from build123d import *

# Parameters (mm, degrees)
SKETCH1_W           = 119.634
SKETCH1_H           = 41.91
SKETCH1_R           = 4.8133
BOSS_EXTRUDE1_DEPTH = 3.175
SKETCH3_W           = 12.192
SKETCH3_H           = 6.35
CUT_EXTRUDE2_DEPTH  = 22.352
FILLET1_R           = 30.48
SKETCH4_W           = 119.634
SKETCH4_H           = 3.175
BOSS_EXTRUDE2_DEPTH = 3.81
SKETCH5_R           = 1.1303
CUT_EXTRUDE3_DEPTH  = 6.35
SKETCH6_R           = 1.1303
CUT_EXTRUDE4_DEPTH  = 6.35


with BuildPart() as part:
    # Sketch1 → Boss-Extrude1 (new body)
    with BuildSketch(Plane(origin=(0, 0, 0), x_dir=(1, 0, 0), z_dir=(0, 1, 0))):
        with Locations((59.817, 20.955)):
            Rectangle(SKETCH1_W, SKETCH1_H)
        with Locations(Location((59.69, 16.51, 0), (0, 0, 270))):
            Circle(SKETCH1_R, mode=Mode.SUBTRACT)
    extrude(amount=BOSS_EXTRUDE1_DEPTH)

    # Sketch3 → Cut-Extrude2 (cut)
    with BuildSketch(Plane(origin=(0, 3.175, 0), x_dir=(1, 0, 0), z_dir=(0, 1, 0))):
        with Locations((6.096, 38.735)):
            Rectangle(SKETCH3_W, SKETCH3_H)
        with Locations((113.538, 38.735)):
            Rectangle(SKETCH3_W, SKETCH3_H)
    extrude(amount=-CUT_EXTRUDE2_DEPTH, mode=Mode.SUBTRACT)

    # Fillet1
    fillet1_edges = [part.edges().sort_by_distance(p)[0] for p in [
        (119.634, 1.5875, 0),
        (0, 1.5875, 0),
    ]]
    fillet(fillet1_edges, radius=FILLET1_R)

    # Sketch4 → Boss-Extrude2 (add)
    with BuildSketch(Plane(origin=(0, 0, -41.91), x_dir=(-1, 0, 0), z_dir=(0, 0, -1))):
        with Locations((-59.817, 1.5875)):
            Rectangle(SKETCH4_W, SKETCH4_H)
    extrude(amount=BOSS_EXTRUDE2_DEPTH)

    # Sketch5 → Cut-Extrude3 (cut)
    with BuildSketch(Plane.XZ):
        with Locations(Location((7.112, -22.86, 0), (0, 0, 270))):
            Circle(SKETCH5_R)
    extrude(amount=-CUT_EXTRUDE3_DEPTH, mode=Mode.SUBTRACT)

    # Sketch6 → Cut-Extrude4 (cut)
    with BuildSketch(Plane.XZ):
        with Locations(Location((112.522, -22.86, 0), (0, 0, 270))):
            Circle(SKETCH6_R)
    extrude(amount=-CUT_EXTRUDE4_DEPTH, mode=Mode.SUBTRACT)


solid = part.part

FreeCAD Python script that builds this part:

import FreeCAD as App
import Part
import Sketcher

V = App.Vector
Q = App.Units.Quantity


def edges_at(feature, points):
    """Names of the edges that pass closest to the given points."""
    edges = feature.Shape.Edges
    near = lambda p: min(range(len(edges)), key=lambda i: edges[i].distToShape(Part.Vertex(*p))[0])
    return sorted({f"Edge{near(p) + 1}" for p in points})


def add_polygon(sketch, points):
    """Adds a closed chain of lines whose ends are joined by coincident constraints."""
    first, n = sketch.GeometryCount, len(points)
    for a, b in zip(points, points[1:] + points[:1]):
        sketch.addGeometry(Part.LineSegment(App.Vector(*a, 0), App.Vector(*b, 0)), False)
    for i in range(n):
        sketch.addConstraint(Sketcher.Constraint("Coincident", first + i, 2, first + (i + 1) % n, 1))

doc = App.newDocument("Part")
body = doc.addObject("PartDesign::Body", "Body")

# Sketch on XZ plane
sketch1 = body.newObject("Sketcher::SketchObject", "Sketch")
sketch1.AttachmentSupport = (doc.getObject("XZ_Plane"), [""])
sketch1.MapMode = "FlatFace"
add_polygon(sketch1, [(0, -41.9), (0, 0), (119.6, 0), (119.6, -41.9)])  # lines 0-3
sketch1.addGeometry(Part.Circle(V(59.7, -16.5, 0), V(0, 0, 1), 4.8), False)  # 4
sketch1.addConstraint([
    Sketcher.Constraint("Vertical", 0),
    Sketcher.Constraint("Horizontal", 1),
    Sketcher.Constraint("Vertical", 2),
    Sketcher.Constraint("Horizontal", 3),
    Sketcher.Constraint("Coincident", 0, 2, -1, 1),
    Sketcher.Constraint("Diameter", 4, Q("0.379 in")),
    Sketcher.Constraint("DistanceY", 2, 2, 4, 3, Q("1 in")),
    Sketcher.Constraint("DistanceX", 1, 1, 1, 2, Q("4.71 in")),
    Sketcher.Constraint("DistanceY", 0, 1, 0, 2, Q("1.65 in")),
    Sketcher.Constraint("DistanceX", -1, 1, 4, 3, Q("2.35 in")),
])
pad1 = body.newObject("PartDesign::Pad", "Pad")
pad1.Profile = sketch1
pad1.Length = Q("0.125 in")
pad1.Reversed = True

# Sketch on XZ plane
sketch2 = body.newObject("Sketcher::SketchObject", "Sketch001")
sketch2.AttachmentSupport = (doc.getObject("XZ_Plane"), [""])
sketch2.MapMode = "FlatFace"
sketch2.AttachmentOffset = App.Placement(V(0, 0, -0.125 * 25.4), App.Rotation())
add_polygon(sketch2, [(0, -42), (0, -36), (12, -36), (12, -42)])  # lines 0-3
add_polygon(sketch2, [(107, -42), (107, -36), (120, -36), (120, -42)])  # lines 4-7
sketch2.addConstraint([
    Sketcher.Constraint("Vertical", 0),
    Sketcher.Constraint("Horizontal", 1),
    Sketcher.Constraint("Vertical", 2),
    Sketcher.Constraint("Horizontal", 3),
    Sketcher.Constraint("Vertical", 4),
    Sketcher.Constraint("Horizontal", 5),
    Sketcher.Constraint("Vertical", 6),
    Sketcher.Constraint("Horizontal", 7),
    Sketcher.Constraint("PointOnObject", 0, 2, -2),
    Sketcher.Constraint("Horizontal", 1, 2, 4, 2),
    Sketcher.Constraint("Horizontal", 3, 2, 6, 2),
    Sketcher.Constraint("Equal", 3, 5),
    Sketcher.Constraint("DistanceX", 1, 1, 1, 2, Q("0.48 in")),
    Sketcher.Constraint("DistanceY", 0, 1, 0, 2, Q("0.25 in")),
    Sketcher.Constraint("DistanceY", 0, 2, -1, 1, Q("1.4 in")),
    Sketcher.Constraint("DistanceX", -1, 1, 4, 2, Q("4.23 in")),
])
pocket1 = body.newObject("PartDesign::Pocket", "Pocket")
pocket1.Profile = sketch2
pocket1.Length = Q("0.88 in")
pocket1.Reversed = True
doc.recompute()

fillet = body.newObject("PartDesign::Fillet", "Fillet")
fillet.Base = (pocket1, edges_at(pocket1, [(119.634, 1.587, 0), (0, 1.587, 0)]))
fillet.Radius = Q("1.2 in")

# Sketch on XY plane
sketch3 = body.newObject("Sketcher::SketchObject", "Sketch002")
sketch3.AttachmentSupport = (doc.getObject("XY_Plane"), [""])
sketch3.MapMode = "FlatFace"
sketch3.AttachmentOffset = App.Placement(V(0, 0, -1.65 * 25.4), App.Rotation())
add_polygon(sketch3, [(119.6, 3.2), (119.6, 0), (0, 0), (0, 3.2)])  # lines 0-3
sketch3.addConstraint([
    Sketcher.Constraint("Vertical", 0),
    Sketcher.Constraint("Horizontal", 1),
    Sketcher.Constraint("Vertical", 2),
    Sketcher.Constraint("Horizontal", 3),
    Sketcher.Constraint("Coincident", 1, 2, -1, 1),
    Sketcher.Constraint("DistanceX", 1, 2, 1, 1, Q("4.71 in")),
    Sketcher.Constraint("DistanceY", 0, 2, 0, 1, Q("0.125 in")),
])
pad2 = body.newObject("PartDesign::Pad", "Pad001")
pad2.Profile = sketch3
pad2.Length = Q("0.15 in")
pad2.Reversed = True

# Sketch on XZ plane
sketch4 = body.newObject("Sketcher::SketchObject", "Sketch003")
sketch4.AttachmentSupport = (doc.getObject("XZ_Plane"), [""])
sketch4.MapMode = "FlatFace"
sketch4.addGeometry(Part.Circle(V(7.1, -22.9, 0), V(0, 0, 1), 1.1), False)
sketch4.addConstraint([
    Sketcher.Constraint("Diameter", 0, Q("0.089 in")),
    Sketcher.Constraint("DistanceY", 0, 3, -1, 1, Q("0.9 in")),
    Sketcher.Constraint("DistanceX", -1, 1, 0, 3, Q("0.28 in")),
])
pocket2 = body.newObject("PartDesign::Pocket", "Pocket001")
pocket2.Profile = sketch4
pocket2.Length = Q("0.25 in")

# Sketch on XZ plane
sketch5 = body.newObject("Sketcher::SketchObject", "Sketch004")
sketch5.AttachmentSupport = (doc.getObject("XZ_Plane"), [""])
sketch5.MapMode = "FlatFace"
sketch5.addGeometry(Part.Circle(V(112.5, -22.9, 0), V(0, 0, 1), 1.1), False)
sketch5.addConstraint([
    Sketcher.Constraint("Diameter", 0, Q("0.089 in")),
    Sketcher.Constraint("DistanceY", 0, 3, -1, 1, Q("0.9 in")),
    Sketcher.Constraint("DistanceX", -1, 1, 0, 3, Q("4.43 in")),
])
pocket3 = body.newObject("PartDesign::Pocket", "Pocket002")
pocket3.Profile = sketch5
pocket3.Length = Q("0.25 in")

doc.recompute()
